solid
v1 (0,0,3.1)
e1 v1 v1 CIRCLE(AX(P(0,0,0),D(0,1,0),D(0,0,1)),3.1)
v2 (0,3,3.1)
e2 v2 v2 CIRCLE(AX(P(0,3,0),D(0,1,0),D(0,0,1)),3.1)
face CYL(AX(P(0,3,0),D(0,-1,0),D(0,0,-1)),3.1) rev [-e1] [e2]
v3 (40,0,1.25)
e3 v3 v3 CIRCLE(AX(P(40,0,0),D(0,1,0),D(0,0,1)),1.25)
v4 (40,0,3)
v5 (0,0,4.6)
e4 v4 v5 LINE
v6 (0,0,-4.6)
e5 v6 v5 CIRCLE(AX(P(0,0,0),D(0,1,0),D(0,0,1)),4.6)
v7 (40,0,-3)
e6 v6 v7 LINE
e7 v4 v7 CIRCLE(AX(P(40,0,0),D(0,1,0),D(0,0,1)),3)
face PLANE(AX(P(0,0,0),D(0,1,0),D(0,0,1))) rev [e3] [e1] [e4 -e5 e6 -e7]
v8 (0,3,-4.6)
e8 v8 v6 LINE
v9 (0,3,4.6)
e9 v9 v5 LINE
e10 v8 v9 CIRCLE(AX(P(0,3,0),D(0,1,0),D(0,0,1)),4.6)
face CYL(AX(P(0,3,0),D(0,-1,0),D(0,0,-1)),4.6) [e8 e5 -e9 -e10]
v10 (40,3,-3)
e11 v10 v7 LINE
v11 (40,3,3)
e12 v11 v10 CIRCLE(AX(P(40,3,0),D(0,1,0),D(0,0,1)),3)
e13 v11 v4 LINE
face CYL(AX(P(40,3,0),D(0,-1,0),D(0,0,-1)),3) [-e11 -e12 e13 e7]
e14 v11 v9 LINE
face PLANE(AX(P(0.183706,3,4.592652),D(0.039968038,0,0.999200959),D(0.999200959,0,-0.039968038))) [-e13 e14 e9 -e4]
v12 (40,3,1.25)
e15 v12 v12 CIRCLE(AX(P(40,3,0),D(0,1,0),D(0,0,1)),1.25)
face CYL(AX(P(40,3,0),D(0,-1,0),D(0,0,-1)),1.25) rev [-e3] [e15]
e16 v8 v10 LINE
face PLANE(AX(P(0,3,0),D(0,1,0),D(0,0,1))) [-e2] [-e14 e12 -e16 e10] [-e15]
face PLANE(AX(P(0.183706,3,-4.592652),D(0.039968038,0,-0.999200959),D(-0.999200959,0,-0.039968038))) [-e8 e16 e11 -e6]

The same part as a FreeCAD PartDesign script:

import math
import FreeCAD as App
import Part
import Sketcher

doc = App.newDocument("Part")
body = doc.addObject("PartDesign::Body", "Body")

sketch1 = body.newObject("Sketcher::SketchObject", "Sketch")
sketch1.AttachmentSupport = (doc.getObject("XZ_Plane"), [""])
sketch1.MapMode = "FlatFace"
sketch1.addGeometry(Part.LineSegment(App.Vector(40, -3, 0), App.Vector(0.37, -4.59, 0)), False)
sketch1.addGeometry(Part.LineSegment(App.Vector(0.37, -4.59, 0), App.Vector(0, -4.6, 0)), False)
sketch1.addGeometry(Part.ArcOfCircle(Part.Circle(App.Vector(0, 0, 0), App.Vector(0, 0, 1), 4.6), math.radians(90), math.radians(270)), False)
sketch1.addGeometry(Part.LineSegment(App.Vector(0, 4.6, 0), App.Vector(0.37, 4.59, 0)), False)
sketch1.addGeometry(Part.LineSegment(App.Vector(0.37, 4.59, 0), App.Vector(40, 3, 0)), False)
sketch1.addGeometry(Part.ArcOfCircle(Part.Circle(App.Vector(40, 0, 0), App.Vector(0, 0, 1), 3), math.radians(-90), math.radians(90)), False)
sketch1.addGeometry(Part.Circle(App.Vector(0, 0, 0), App.Vector(0, 0, 1), 3.1), False)
sketch1.addGeometry(Part.Circle(App.Vector(40, 0, 0), App.Vector(0, 0, 1), 1.25), False)
sketch1.addConstraint(Sketcher.Constraint("Coincident", 0, 2, 1, 1))
sketch1.addConstraint(Sketcher.Constraint("Coincident", 1, 2, 2, 2))
sketch1.addConstraint(Sketcher.Constraint("Coincident", 2, 1, 3, 1))
sketch1.addConstraint(Sketcher.Constraint("Coincident", 3, 2, 4, 1))
sketch1.addConstraint(Sketcher.Constraint("Coincident", 4, 2, 5, 2))
sketch1.addConstraint(Sketcher.Constraint("Coincident", 5, 1, 0, 1))
sketch1.addConstraint(Sketcher.Constraint("Coincident", 2, 3, -1, 1))
sketch1.addConstraint(Sketcher.Constraint("Coincident", 6, 3, -1, 1))
sketch1.addConstraint(Sketcher.Constraint("Coincident", 7, 3, 5, 3))
sketch1.addConstraint(Sketcher.Constraint("Symmetric", 0, 2, 3, 2, -1))
sketch1.addConstraint(Sketcher.Constraint("Symmetric", 4, 2, 5, 1, -1))
sketch1.addConstraint(Sketcher.Constraint("PointOnObject", 1, 2, -2))
sketch1.addConstraint(Sketcher.Constraint("PointOnObject", 2, 1, -2))
sketch1.addConstraint(Sketcher.Constraint("Parallel", 0, 1))
sketch1.addConstraint(Sketcher.Constraint("Vertical", 7, 3, 4, 2))
sketch1.addConstraint(Sketcher.Constraint("Radius", 5, 3.0))
sketch1.addConstraint(Sketcher.Constraint("Diameter", 6, 6.2))
sketch1.addConstraint(Sketcher.Constraint("Diameter", 7, 2.5))
sketch1.addConstraint(Sketcher.Constraint("Radius", 2, 4.6))
sketch1.addConstraint(Sketcher.Constraint("DistanceX", -1, 1, 5, 3, 40.0))
sketch1.addConstraint(Sketcher.Constraint("Distance", 0, 39.664281))
pad1 = body.newObject("PartDesign::Pad", "Pad")
pad1.Profile = sketch1
pad1.Length = 3
pad1.Reversed = True

doc.recompute()
